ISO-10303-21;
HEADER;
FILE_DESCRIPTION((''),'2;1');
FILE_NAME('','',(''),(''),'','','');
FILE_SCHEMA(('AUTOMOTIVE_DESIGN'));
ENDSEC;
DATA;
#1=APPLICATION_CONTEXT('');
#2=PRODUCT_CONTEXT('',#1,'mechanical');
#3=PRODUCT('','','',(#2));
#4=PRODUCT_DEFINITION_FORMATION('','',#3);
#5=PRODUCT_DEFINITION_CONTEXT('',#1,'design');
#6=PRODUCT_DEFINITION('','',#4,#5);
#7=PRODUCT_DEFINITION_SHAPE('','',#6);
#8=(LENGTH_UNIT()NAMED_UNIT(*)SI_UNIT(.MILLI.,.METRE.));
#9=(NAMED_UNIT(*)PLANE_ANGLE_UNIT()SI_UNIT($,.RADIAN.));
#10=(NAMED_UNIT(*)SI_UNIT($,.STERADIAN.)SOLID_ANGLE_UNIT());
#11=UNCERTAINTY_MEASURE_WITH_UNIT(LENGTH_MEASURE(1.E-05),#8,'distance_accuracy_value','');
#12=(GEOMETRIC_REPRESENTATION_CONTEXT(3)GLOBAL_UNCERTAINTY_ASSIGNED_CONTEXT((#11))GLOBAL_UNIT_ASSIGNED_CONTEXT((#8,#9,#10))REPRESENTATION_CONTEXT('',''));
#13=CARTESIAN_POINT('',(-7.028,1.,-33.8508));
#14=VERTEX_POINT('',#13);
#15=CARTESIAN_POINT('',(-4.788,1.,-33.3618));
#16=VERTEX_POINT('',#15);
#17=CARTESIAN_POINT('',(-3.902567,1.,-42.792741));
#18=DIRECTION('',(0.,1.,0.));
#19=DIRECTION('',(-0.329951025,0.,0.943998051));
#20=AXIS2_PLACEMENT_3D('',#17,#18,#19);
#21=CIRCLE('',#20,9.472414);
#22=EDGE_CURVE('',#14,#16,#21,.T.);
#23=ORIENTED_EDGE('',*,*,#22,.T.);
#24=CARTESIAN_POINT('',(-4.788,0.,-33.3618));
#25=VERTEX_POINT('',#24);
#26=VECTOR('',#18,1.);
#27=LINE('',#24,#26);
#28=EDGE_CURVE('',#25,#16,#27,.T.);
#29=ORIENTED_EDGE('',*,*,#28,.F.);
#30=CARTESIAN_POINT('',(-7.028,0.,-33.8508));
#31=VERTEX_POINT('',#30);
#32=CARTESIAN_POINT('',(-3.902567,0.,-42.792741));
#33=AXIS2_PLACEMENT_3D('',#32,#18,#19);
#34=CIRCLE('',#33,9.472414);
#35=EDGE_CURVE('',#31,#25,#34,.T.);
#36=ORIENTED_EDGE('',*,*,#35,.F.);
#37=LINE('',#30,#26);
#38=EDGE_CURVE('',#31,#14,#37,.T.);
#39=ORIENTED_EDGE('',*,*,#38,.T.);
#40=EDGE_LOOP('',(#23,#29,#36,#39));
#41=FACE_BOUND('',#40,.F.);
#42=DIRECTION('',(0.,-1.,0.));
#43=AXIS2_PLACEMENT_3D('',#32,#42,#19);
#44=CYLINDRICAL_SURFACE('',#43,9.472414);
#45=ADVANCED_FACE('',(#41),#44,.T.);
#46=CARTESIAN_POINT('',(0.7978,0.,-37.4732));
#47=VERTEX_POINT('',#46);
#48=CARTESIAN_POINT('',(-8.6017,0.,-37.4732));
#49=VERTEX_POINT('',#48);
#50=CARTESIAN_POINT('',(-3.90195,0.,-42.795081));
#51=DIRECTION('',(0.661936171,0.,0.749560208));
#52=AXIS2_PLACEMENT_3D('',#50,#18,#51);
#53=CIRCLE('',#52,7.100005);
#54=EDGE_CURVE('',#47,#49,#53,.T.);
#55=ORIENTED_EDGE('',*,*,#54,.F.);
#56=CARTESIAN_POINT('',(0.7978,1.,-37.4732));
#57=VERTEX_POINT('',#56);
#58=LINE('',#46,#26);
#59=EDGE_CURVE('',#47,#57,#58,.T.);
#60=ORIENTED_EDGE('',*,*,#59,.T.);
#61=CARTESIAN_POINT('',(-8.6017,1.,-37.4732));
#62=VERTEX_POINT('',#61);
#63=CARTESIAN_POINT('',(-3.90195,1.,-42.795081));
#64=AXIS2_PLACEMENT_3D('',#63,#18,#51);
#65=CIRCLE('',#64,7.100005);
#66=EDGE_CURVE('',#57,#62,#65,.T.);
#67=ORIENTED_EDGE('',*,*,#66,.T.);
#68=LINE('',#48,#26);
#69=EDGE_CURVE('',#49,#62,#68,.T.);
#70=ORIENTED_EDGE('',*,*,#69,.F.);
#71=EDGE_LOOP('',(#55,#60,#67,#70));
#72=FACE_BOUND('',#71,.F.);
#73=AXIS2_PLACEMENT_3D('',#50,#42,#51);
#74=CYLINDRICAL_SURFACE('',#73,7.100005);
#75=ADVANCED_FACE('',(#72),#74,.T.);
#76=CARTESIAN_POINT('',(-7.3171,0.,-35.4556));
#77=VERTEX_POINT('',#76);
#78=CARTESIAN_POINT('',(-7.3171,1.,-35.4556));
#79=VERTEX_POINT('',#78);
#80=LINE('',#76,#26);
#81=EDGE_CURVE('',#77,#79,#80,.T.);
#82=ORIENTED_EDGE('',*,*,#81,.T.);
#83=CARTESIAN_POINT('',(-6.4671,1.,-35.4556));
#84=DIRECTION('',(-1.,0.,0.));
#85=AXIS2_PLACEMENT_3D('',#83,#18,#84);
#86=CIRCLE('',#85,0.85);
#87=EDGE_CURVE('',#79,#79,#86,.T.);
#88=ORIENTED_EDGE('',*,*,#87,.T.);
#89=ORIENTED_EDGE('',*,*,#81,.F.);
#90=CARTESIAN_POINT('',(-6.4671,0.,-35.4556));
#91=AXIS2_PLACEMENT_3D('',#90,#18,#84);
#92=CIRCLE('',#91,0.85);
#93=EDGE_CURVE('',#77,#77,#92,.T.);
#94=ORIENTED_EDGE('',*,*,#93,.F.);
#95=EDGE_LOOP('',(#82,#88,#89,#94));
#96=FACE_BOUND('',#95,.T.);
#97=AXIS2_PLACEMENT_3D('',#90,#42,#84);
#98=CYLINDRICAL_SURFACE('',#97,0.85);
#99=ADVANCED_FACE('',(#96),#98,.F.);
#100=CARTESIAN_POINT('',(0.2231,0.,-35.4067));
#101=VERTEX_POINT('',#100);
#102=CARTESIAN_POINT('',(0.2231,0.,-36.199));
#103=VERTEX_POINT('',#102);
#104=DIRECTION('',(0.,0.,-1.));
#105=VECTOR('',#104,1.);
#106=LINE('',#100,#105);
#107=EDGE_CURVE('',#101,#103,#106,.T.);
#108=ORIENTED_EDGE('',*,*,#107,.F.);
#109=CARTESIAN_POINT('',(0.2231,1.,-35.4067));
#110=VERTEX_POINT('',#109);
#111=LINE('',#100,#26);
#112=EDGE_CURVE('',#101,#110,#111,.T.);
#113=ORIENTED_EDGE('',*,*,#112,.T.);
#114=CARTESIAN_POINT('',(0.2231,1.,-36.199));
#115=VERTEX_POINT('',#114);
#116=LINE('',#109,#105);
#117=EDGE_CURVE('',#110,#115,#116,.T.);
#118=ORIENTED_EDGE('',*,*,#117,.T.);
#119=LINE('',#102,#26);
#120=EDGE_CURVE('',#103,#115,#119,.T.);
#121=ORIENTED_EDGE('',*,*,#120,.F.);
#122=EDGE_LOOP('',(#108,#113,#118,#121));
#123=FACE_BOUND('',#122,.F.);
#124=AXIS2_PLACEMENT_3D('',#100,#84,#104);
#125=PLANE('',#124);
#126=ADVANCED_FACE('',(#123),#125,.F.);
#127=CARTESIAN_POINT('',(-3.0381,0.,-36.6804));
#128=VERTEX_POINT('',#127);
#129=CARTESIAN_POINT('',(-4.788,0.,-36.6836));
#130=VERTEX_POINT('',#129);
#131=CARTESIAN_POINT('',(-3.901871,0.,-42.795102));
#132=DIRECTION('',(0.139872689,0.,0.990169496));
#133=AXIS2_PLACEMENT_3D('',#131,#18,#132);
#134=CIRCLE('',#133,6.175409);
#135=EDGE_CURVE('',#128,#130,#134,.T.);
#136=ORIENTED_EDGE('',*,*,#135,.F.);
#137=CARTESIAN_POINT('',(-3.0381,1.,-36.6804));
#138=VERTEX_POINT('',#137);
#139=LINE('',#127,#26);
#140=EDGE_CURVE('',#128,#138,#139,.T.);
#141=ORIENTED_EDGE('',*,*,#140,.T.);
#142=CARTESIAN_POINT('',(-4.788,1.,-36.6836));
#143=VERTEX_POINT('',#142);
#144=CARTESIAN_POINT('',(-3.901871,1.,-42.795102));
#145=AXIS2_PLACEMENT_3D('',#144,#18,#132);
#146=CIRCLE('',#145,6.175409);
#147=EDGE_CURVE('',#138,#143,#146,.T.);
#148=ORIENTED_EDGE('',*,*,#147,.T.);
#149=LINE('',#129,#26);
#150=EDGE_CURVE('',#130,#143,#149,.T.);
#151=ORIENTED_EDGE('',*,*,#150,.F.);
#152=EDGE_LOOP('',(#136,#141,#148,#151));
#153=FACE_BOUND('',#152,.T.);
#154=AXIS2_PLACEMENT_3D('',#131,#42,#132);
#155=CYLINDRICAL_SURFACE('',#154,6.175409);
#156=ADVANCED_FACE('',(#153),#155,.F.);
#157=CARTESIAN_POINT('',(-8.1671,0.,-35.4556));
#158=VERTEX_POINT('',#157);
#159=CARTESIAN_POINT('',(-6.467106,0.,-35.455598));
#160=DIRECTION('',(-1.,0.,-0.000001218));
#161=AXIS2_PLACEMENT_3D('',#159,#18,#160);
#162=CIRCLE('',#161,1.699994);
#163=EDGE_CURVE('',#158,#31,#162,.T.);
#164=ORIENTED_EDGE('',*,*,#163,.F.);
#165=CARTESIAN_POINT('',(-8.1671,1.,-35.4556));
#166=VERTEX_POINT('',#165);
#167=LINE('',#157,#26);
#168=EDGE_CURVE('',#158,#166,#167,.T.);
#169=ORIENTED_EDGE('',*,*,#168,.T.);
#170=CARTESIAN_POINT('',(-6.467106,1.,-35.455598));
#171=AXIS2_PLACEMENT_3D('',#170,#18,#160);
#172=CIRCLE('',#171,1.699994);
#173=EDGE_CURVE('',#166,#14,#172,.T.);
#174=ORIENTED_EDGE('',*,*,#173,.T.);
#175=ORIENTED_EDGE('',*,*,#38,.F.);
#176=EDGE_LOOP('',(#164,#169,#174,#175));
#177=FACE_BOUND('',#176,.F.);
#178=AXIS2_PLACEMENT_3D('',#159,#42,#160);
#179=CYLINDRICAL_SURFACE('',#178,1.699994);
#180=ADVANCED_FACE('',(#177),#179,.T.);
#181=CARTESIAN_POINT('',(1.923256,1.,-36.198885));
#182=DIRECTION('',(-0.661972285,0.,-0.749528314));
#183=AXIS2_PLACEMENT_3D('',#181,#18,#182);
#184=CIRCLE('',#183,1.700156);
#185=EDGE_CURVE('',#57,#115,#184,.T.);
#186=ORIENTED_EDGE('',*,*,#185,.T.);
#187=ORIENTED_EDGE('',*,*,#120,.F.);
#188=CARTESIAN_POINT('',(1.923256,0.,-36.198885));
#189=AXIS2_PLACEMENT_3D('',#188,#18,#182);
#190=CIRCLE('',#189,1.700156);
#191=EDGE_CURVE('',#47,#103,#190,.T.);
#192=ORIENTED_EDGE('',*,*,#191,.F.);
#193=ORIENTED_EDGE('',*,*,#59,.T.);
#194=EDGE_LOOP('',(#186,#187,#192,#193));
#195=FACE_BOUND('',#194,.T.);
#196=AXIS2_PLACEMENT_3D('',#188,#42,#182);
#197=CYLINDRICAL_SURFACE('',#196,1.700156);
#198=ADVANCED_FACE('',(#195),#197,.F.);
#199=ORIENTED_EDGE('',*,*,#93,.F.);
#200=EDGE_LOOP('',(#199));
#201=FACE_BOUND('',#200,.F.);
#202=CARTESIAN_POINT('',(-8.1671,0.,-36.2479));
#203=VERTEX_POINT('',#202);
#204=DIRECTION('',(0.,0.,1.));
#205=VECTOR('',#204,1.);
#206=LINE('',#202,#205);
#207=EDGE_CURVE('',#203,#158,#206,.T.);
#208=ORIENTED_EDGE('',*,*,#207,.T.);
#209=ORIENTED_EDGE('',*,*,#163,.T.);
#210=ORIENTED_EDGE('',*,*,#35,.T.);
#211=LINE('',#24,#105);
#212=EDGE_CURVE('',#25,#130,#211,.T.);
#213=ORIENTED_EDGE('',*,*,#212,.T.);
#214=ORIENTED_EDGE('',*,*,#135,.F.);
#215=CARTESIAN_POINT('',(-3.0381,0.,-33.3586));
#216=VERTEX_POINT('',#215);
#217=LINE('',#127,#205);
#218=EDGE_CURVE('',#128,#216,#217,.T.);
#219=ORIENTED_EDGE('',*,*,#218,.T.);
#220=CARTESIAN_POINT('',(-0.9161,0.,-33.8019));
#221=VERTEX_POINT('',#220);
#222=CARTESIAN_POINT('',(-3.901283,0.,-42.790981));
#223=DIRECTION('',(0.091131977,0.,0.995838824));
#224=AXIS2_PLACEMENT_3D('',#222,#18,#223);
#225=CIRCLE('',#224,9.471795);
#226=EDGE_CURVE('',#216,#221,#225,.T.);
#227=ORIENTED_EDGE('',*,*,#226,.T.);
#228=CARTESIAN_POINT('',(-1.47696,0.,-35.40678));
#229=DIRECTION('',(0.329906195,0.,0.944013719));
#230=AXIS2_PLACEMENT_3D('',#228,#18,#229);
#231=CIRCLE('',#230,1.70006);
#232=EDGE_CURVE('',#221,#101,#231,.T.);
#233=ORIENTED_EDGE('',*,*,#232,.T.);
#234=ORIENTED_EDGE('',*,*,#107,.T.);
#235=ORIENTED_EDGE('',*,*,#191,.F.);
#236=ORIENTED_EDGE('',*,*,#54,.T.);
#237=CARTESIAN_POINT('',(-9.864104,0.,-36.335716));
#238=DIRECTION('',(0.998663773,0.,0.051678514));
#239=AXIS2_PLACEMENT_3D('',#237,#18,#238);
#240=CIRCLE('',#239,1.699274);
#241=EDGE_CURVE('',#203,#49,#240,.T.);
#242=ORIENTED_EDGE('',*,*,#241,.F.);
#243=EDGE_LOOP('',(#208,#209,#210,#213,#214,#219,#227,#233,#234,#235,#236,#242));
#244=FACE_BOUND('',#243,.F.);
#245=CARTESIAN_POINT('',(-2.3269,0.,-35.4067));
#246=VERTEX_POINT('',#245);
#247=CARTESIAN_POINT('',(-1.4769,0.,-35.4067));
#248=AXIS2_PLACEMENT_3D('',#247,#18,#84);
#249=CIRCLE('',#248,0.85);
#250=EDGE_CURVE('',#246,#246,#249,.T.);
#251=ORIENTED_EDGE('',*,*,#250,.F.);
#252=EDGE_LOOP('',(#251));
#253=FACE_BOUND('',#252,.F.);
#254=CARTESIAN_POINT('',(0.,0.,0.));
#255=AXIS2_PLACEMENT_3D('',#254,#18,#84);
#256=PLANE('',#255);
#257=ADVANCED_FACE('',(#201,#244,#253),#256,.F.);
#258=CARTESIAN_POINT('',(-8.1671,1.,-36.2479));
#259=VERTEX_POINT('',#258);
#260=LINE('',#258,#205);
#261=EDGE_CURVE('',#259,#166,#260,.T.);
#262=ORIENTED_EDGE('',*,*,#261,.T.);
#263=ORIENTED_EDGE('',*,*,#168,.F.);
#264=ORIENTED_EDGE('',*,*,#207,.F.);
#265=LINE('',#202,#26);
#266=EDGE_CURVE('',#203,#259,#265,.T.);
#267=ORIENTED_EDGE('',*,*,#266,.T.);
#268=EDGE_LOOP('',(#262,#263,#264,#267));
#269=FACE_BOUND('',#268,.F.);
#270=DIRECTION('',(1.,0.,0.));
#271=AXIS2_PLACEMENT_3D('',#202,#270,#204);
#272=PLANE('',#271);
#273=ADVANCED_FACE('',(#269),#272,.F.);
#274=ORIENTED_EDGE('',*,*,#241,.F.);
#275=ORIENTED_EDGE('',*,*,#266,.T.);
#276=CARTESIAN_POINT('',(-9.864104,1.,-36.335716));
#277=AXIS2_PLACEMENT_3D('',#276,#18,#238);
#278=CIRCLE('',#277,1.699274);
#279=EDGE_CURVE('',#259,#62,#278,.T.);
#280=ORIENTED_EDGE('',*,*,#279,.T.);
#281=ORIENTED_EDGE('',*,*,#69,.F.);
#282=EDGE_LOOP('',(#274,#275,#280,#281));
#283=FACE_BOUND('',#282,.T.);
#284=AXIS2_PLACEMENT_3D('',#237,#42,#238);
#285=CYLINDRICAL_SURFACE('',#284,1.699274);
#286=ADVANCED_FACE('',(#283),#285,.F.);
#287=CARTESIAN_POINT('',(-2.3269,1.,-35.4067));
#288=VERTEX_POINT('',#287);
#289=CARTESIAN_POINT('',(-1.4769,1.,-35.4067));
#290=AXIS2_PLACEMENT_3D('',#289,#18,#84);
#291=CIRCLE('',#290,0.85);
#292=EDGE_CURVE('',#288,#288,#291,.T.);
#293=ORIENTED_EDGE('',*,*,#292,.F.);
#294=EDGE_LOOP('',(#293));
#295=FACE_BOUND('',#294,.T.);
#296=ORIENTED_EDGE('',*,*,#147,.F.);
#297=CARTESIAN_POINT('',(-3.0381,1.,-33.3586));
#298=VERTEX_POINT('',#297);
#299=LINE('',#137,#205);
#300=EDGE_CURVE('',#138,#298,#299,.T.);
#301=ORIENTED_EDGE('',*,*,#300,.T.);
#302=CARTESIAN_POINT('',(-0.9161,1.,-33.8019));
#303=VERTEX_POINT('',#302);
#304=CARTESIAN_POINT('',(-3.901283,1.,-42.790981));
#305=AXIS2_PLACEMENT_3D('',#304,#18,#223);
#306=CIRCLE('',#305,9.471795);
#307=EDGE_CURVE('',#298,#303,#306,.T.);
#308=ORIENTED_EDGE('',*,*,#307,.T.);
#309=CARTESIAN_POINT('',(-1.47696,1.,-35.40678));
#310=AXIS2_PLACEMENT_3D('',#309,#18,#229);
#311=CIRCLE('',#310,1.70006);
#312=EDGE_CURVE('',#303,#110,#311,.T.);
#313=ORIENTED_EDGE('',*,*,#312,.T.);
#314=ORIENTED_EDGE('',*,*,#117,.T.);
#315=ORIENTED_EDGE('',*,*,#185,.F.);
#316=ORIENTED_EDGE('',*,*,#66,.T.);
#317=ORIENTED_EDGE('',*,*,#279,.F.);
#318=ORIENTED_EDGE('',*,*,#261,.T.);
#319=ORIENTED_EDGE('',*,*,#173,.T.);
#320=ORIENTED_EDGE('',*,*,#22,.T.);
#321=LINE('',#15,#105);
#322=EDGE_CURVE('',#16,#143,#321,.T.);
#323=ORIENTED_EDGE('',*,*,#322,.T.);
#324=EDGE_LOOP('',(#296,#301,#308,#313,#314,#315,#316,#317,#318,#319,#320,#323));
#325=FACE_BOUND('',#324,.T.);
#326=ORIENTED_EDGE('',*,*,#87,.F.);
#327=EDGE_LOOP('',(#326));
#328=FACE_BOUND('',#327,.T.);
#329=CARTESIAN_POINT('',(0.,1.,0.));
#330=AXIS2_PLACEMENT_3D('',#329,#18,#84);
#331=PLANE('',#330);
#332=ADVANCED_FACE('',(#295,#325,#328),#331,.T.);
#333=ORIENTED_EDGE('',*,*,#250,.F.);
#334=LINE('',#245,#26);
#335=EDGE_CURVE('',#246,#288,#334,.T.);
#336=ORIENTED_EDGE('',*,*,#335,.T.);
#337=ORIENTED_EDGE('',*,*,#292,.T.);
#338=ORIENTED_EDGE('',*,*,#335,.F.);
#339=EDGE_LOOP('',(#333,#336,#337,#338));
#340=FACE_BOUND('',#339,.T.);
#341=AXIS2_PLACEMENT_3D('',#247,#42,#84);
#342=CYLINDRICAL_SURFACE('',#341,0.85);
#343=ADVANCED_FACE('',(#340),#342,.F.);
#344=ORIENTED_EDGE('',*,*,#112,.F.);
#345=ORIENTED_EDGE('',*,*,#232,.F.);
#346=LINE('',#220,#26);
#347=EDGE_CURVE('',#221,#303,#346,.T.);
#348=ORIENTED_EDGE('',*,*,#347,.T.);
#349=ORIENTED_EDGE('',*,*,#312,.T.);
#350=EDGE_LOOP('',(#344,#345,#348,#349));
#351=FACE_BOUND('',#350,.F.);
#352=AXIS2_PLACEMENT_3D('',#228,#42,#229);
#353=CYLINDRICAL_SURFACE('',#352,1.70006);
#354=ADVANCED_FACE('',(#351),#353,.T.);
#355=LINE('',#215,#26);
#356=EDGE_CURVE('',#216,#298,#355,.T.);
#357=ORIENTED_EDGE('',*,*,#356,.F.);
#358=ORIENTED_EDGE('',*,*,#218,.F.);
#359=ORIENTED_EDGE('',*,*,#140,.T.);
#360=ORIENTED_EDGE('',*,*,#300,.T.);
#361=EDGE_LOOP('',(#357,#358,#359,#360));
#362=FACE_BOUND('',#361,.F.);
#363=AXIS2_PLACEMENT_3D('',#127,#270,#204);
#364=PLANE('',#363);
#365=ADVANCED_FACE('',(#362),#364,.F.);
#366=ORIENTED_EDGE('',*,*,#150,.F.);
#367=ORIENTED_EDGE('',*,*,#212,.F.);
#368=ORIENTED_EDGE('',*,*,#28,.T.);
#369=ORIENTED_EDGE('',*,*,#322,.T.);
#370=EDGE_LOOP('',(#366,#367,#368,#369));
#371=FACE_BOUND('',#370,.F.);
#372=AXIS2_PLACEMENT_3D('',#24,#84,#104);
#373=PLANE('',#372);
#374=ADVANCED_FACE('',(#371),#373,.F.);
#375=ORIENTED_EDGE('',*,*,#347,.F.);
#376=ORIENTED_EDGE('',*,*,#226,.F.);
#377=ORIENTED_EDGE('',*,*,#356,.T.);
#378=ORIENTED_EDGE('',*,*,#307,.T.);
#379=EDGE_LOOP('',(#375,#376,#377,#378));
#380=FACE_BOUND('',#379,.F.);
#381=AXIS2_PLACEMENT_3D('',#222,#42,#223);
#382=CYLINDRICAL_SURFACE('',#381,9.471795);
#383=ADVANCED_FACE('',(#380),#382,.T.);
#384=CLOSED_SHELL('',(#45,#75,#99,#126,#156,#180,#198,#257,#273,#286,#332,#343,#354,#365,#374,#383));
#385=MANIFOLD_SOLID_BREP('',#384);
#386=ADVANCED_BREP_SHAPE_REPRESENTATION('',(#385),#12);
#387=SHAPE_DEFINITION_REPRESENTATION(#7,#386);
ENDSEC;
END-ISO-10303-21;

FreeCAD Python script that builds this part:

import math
import FreeCAD as App
import Part
import Sketcher

V = App.Vector

doc = App.newDocument("Part")
params = doc.addObject("Spreadsheet::Sheet", "Params")
for row, (alias, value) in enumerate([
    ("sketch1_diameter", "1.7 mm"),
    ("sketch1_diameter2", "1.7 mm"),
    ("sketch1_radius", "1.7 mm"),
    ("sketch1_radius2", "1.7 mm"),
    ("sketch1_radius3", "7.1 mm"),
    ("pad1_length", "1 mm"),
], start=1):
    params.set(f"A{row}", alias)
    params.set(f"B{row}", "=" + value)
    params.setAlias(f"B{row}", alias)

body = doc.addObject("PartDesign::Body", "Body")

# Sketch on XZ plane
sketch1 = doc.addObject("Sketcher::SketchObject", "Sketch")
body.addObject(sketch1)
sketch1.AttachmentSupport = (doc.XZ_Plane, [""])
sketch1.MapMode = "FlatFace"
sketch1.addGeometry(Part.ArcOfCircle(Part.Circle(V(-3.902567, -42.792741, 0), V(0, 0, 1), 9.472414), math.radians(95.363546), math.radians(109.265803)), False)
sketch1.addGeometry(Part.LineSegment(V(-4.788, -33.3618, 0), V(-4.788, -36.6836, 0)), False)
sketch1.addGeometry(Part.ArcOfCircle(Part.Circle(V(-3.9019, -42.7951, 0), V(0, 0, 1), 6.175411), math.radians(98.249767), math.radians(441.959253)), False)
sketch1.addGeometry(Part.LineSegment(V(-3.0381, -36.6804, 0), V(-3.0381, -33.3586, 0)), False)
sketch1.addGeometry(Part.ArcOfCircle(Part.Circle(V(-3.901283, -42.790981, 0), V(0, 0, 1), 9.471795), math.radians(71.629193), math.radians(84.771268)), False)
sketch1.addGeometry(Part.ArcOfCircle(Part.Circle(V(-1.4769, -35.4067, 0), V(0, 0, 1), 1.699965), math.radians(0), math.radians(70.737948)), False)
sketch1.addGeometry(Part.LineSegment(V(0.2231, -35.4067, 0), V(0.2231, -36.199, 0)), False)
sketch1.addGeometry(Part.ArcOfCircle(Part.Circle(V(1.9231, -36.199, 0), V(0, 0, 1), 1.699966), math.radians(180), math.radians(228.550913)), False)
sketch1.addGeometry(Part.ArcOfCircle(Part.Circle(V(-3.9019, -42.7951, 0), V(0, 0, 1), 7.099986), math.radians(131.447905), math.radians(408.5527)), False)
sketch1.addGeometry(Part.ArcOfCircle(Part.Circle(V(-9.8649, -36.3356, 0), V(0, 0, 1), 1.700064), math.radians(-42.00525), math.radians(2.95699)), False)
sketch1.addGeometry(Part.LineSegment(V(-8.1671, -36.2479, 0), V(-8.1671, -35.4556, 0)), False)
sketch1.addGeometry(Part.ArcOfCircle(Part.Circle(V(-6.4671, -35.4556, 0), V(0, 0, 1), 1.7), math.radians(109.265233), math.radians(180)), False)
sketch1.addGeometry(Part.Circle(V(-1.4769, -35.4067, 0), V(0, 0, 1), 0.85), False)
sketch1.addGeometry(Part.Circle(V(-6.4671, -35.4556, 0), V(0, 0, 1), 0.85), False)
sketch1.addConstraint(Sketcher.Constraint("Coincident", 0, 1, 1, 1))
sketch1.addConstraint(Sketcher.Constraint("Coincident", 1, 2, 2, 1))
sketch1.addConstraint(Sketcher.Constraint("Coincident", 2, 2, 3, 1))
sketch1.addConstraint(Sketcher.Constraint("Coincident", 3, 2, 4, 2))
sketch1.addConstraint(Sketcher.Constraint("Coincident", 4, 1, 5, 2))
sketch1.addConstraint(Sketcher.Constraint("Coincident", 5, 1, 6, 1))
sketch1.addConstraint(Sketcher.Constraint("Coincident", 6, 2, 7, 1))
sketch1.addConstraint(Sketcher.Constraint("Coincident", 7, 2, 8, 2))
sketch1.addConstraint(Sketcher.Constraint("Coincident", 8, 1, 9, 1))
sketch1.addConstraint(Sketcher.Constraint("Coincident", 9, 2, 10, 1))
sketch1.addConstraint(Sketcher.Constraint("Coincident", 10, 2, 11, 2))
sketch1.addConstraint(Sketcher.Constraint("Coincident", 11, 1, 0, 2))
sketch1.addConstraint(Sketcher.Constraint("Vertical", 1))
sketch1.addConstraint(Sketcher.Constraint("Vertical", 3))
sketch1.addConstraint(Sketcher.Constraint("Vertical", 6))
sketch1.addConstraint(Sketcher.Constraint("Vertical", 10))
sketch1.addConstraint(Sketcher.Constraint("Coincident", 8, 3, 2, 3))
sketch1.addConstraint(Sketcher.Constraint("Coincident", 12, 3, 5, 3))
sketch1.addConstraint(Sketcher.Constraint("Coincident", 13, 3, 11, 3))
sketch1.addConstraint(Sketcher.Constraint("Diameter", 12, 1.7))
sketch1.addConstraint(Sketcher.Constraint("Diameter", 13, 1.7))
sketch1.addConstraint(Sketcher.Constraint("Radius", 5, 1.7))
sketch1.addConstraint(Sketcher.Constraint("Radius", 7, 1.7))
sketch1.addConstraint(Sketcher.Constraint("Radius", 8, 7.1))
sketch1.addConstraint(Sketcher.Constraint("Radius", 9, 1.7))
sketch1.addConstraint(Sketcher.Constraint("Radius", 11, 1.7))
sketch1.addConstraint(Sketcher.Constraint("Radius", 2, 6.1754))
sketch1.addConstraint(Sketcher.Constraint("DistanceX", 1, 2, 2, 2, 1.75))
sketch1.addConstraint(Sketcher.Constraint("Radius", 0, 9.4724))
sketch1.addConstraint(Sketcher.Constraint("Radius", 4, 9.4718))
sketch1.addConstraint(Sketcher.Constraint("DistanceY", 9, 3, 11, 3, 0.88))
sketch1.addConstraint(Sketcher.Constraint("DistanceY", 9, 3, 10, 2, 0.88))
sketch1.addConstraint(Sketcher.Constraint("DistanceX", 11, 1, 0, 1, 2.24))
sketch1.addConstraint(Sketcher.Constraint("DistanceY", 1, 2, 1, 1, 3.3218))
sketch1.addConstraint(Sketcher.Constraint("DistanceY", 3, 1, 3, 2, 3.3218))
sketch1.addConstraint(Sketcher.Constraint("DistanceY", 6, 2, 6, 1, 0.7923))
sketch1.addConstraint(Sketcher.Constraint("DistanceY", 10, 1, 10, 2, 0.7923))
sketch1.addConstraint(Sketcher.Constraint("DistanceX", 2, 3, -1, 1, 3.902))
sketch1.addConstraint(Sketcher.Constraint("DistanceY", 2, 3, -1, 1, 42.795))
sketch1.addConstraint(Sketcher.Constraint("DistanceY", 4, 3, -1, 1, 42.791))
sketch1.addConstraint(Sketcher.Constraint("DistanceX", 5, 3, -1, 1, 1.477))
sketch1.addConstraint(Sketcher.Constraint("DistanceX", 9, 3, -1, 1, 9.865))
sketch1.addConstraint(Sketcher.Constraint("DistanceX", 0, 1, -1, 1, 4.788))
sketch1.addConstraint(Sketcher.Constraint("DistanceX", 4, 1, -1, 1, 0.916))
sketch1.addConstraint(Sketcher.Constraint("DistanceY", 6, 2, -1, 1, 36.199))
sketch1.addConstraint(Sketcher.Constraint("DistanceY", 9, 2, -1, 1, 36.248))
sketch1.addConstraint(Sketcher.Constraint("DistanceX", -1, 1, 7, 2, 0.7978))
sketch1.setExpression("Constraints[19]", "Params.sketch1_diameter")
sketch1.setExpression("Constraints[20]", "Params.sketch1_diameter2")
sketch1.setExpression("Constraints[21]", "Params.sketch1_radius")
sketch1.setExpression("Constraints[22]", "Params.sketch1_radius2")
sketch1.setExpression("Constraints[23]", "Params.sketch1_radius3")
pad1 = doc.addObject("PartDesign::Pad", "Pad")
body.addObject(pad1)
pad1.Profile = sketch1
pad1.setExpression("Length", "Params.pad1_length")
pad1.Reversed = True

doc.recompute()
